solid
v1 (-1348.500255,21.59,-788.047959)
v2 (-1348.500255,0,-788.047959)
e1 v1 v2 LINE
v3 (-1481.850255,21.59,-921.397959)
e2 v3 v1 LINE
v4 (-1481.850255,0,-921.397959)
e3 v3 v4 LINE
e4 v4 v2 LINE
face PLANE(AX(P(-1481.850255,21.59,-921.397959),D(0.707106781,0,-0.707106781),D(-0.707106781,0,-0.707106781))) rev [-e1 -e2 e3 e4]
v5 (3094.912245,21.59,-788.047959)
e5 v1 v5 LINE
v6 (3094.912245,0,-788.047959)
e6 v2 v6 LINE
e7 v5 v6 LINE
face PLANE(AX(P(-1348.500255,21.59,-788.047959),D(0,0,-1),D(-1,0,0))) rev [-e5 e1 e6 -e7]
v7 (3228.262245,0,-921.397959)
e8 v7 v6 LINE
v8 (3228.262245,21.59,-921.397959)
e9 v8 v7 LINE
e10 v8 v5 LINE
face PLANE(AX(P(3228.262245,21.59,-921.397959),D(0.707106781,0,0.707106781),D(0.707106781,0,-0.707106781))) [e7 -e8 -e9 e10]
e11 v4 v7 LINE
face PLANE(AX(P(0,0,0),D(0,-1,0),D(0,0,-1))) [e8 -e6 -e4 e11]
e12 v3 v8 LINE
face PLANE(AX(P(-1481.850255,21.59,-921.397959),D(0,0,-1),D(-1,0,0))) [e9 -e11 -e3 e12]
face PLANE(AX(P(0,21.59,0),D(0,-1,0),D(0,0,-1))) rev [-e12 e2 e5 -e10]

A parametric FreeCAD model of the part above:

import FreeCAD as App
import Part
import Sketcher

V = App.Vector
Q = App.Units.Quantity

doc = App.newDocument("Part")
body = doc.addObject("PartDesign::Body", "Body")

# Sketch on XZ plane
sketch1 = body.newObject("Sketcher::SketchObject", "Sketch")
sketch1.AttachmentSupport = (doc.getObject("XZ_Plane"), [""])
sketch1.MapMode = "FlatFace"
sketch1.addGeometry([
    Part.LineSegment(V(3228, -921, 0), V(-1482, -921, 0)),
    Part.LineSegment(V(-1482, -921, 0), V(-1349, -788, 0)),
    Part.LineSegment(V(-1349, -788, 0), V(3095, -788, 0)),
    Part.LineSegment(V(3095, -788, 0), V(3228, -921, 0)),
], False)
sketch1.addConstraint([
    Sketcher.Constraint("Coincident", 0, 2, 1, 1),
    Sketcher.Constraint("Coincident", 1, 2, 2, 1),
    Sketcher.Constraint("Coincident", 2, 2, 3, 1),
    Sketcher.Constraint("Coincident", 3, 2, 0, 1),
    Sketcher.Constraint("Horizontal", 0),
    Sketcher.Constraint("Horizontal", 2),
    Sketcher.Constraint("Perpendicular", 1, 3),
    Sketcher.Constraint("Equal", 1, 3),
    Sketcher.Constraint("DistanceX", 0, 2, 0, 1, Q("185.4375 in")),
    Sketcher.Constraint("DistanceX", 2, 1, 2, 2, Q("174.9375 in")),
    Sketcher.Constraint("DistanceY", 0, 2, -1, 1, Q("921.397959 mm")),
    Sketcher.Constraint("DistanceX", 0, 2, -1, 1, Q("1481.850255 mm")),
])
pad1 = body.newObject("PartDesign::Pad", "Pad")
pad1.Profile = sketch1
pad1.Length = Q("0.85 in")
pad1.Reversed = True

doc.recompute()
